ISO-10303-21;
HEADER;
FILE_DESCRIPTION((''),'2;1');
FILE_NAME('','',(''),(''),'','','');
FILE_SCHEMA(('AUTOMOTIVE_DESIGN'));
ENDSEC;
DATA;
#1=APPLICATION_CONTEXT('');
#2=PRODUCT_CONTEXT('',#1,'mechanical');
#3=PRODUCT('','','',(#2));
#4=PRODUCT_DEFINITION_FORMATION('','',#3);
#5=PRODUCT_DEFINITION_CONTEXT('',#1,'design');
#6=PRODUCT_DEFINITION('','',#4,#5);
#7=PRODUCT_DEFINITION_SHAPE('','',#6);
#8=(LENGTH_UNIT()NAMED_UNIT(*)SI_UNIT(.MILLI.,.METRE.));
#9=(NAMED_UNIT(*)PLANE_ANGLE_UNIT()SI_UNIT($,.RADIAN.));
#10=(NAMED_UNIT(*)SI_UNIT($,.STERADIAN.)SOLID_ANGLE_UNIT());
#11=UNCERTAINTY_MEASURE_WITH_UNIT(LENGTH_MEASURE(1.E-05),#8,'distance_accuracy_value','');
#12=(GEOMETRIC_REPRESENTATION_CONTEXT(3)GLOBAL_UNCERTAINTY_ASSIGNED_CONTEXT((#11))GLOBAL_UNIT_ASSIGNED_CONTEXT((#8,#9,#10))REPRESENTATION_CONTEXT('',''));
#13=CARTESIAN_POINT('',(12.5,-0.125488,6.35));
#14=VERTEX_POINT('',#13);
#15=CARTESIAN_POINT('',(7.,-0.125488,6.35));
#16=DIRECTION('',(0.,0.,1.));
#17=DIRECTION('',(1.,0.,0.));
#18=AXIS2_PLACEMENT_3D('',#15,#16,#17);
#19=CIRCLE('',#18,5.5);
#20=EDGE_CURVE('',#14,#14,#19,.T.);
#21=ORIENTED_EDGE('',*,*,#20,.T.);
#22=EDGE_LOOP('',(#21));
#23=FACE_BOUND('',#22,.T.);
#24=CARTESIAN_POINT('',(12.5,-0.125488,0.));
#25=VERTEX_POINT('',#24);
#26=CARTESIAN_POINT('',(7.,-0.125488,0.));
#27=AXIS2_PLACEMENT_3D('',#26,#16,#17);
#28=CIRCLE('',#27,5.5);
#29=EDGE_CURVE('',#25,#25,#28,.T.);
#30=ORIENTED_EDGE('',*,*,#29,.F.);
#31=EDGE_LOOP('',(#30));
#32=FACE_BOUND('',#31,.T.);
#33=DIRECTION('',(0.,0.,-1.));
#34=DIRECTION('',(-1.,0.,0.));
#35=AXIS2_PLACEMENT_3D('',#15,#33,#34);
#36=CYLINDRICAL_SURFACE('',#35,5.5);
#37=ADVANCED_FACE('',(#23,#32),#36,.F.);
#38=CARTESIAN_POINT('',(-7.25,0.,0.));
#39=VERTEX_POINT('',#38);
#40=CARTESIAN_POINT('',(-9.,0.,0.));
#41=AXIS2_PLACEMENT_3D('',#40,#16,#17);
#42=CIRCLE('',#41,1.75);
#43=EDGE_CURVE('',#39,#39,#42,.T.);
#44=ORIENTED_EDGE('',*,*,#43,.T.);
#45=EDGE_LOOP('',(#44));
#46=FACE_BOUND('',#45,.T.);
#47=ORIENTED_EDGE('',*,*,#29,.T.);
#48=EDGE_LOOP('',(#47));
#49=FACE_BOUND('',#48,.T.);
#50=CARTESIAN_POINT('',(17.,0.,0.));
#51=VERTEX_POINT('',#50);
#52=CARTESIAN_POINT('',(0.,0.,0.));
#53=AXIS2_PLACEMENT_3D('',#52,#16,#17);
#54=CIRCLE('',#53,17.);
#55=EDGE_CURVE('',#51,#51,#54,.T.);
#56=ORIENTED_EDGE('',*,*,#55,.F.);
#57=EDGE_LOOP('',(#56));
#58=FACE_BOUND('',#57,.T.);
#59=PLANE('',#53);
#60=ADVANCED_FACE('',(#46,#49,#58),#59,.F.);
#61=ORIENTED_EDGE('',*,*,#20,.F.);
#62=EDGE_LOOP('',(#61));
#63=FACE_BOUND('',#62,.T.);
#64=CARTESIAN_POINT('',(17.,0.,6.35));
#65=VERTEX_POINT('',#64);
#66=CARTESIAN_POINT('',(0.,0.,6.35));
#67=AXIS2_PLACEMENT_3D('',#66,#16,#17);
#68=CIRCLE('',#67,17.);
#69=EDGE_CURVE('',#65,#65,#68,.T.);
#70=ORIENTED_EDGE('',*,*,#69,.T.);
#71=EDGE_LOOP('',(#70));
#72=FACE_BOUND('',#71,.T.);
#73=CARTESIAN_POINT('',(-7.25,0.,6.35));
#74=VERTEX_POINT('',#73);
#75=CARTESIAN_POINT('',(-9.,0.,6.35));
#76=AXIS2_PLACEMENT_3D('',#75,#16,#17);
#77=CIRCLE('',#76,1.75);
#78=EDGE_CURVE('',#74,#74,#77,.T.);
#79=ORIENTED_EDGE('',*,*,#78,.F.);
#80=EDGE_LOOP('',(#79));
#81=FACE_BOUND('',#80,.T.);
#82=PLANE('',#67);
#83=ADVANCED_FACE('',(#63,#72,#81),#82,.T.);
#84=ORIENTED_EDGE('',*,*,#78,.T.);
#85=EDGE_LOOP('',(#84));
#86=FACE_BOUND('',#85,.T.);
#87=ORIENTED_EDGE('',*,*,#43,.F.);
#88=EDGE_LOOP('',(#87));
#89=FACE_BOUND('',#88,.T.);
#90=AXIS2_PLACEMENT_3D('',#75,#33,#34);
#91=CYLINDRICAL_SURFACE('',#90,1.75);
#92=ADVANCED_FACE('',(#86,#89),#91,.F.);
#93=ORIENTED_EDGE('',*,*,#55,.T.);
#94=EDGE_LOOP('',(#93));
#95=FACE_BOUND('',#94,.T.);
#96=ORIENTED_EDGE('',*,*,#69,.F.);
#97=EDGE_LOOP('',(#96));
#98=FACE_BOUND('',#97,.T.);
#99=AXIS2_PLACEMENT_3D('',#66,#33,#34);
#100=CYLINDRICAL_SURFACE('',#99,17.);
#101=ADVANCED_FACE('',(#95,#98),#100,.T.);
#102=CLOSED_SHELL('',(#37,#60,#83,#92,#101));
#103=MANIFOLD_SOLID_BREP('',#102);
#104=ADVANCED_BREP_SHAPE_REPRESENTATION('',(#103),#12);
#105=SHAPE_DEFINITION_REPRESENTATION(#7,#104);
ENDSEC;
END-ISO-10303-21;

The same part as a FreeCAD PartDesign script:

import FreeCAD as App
import Part
import Sketcher
Q = App.Units.Quantity

doc = App.newDocument("Part")
body = doc.addObject("PartDesign::Body", "Body")

# Sketch on XY plane
sketch1 = body.newObject("Sketcher::SketchObject", "Sketch")
sketch1.AttachmentSupport = (doc.getObject("XY_Plane"), [""])
sketch1.MapMode = "FlatFace"
sketch1.addGeometry(Part.Circle(App.Vector(0, 0, 0), App.Vector(0, 0, 1), 17), False)
sketch1.addGeometry(Part.Circle(App.Vector(-9, 0, 0), App.Vector(0, 0, 1), 1.75), False)
sketch1.addGeometry(Part.Circle(App.Vector(7, -0.125488, 0), App.Vector(0, 0, 1), 5.5), False)
sketch1.addConstraint(Sketcher.Constraint("Coincident", 0, 3, -1, 1))
sketch1.addConstraint(Sketcher.Constraint("PointOnObject", 1, 3, -1))
sketch1.addConstraint(Sketcher.Constraint("Diameter", 0, Q("34 mm")))
sketch1.addConstraint(Sketcher.Constraint("Diameter", 2, Q("11 mm")))
sketch1.addConstraint(Sketcher.Constraint("Diameter", 1, Q("3.5 mm")))
sketch1.addConstraint(Sketcher.Constraint("DistanceX", 1, 3, -1, 1, Q("9 mm")))
sketch1.addConstraint(Sketcher.Constraint("DistanceX", -1, 1, 2, 3, Q("7 mm")))
sketch1.addConstraint(Sketcher.Constraint("DistanceY", 2, 3, -1, 1, Q("0.125488 mm")))
pad1 = body.newObject("PartDesign::Pad", "Pad")
pad1.Profile = sketch1
pad1.Length = 6.35

doc.recompute()
